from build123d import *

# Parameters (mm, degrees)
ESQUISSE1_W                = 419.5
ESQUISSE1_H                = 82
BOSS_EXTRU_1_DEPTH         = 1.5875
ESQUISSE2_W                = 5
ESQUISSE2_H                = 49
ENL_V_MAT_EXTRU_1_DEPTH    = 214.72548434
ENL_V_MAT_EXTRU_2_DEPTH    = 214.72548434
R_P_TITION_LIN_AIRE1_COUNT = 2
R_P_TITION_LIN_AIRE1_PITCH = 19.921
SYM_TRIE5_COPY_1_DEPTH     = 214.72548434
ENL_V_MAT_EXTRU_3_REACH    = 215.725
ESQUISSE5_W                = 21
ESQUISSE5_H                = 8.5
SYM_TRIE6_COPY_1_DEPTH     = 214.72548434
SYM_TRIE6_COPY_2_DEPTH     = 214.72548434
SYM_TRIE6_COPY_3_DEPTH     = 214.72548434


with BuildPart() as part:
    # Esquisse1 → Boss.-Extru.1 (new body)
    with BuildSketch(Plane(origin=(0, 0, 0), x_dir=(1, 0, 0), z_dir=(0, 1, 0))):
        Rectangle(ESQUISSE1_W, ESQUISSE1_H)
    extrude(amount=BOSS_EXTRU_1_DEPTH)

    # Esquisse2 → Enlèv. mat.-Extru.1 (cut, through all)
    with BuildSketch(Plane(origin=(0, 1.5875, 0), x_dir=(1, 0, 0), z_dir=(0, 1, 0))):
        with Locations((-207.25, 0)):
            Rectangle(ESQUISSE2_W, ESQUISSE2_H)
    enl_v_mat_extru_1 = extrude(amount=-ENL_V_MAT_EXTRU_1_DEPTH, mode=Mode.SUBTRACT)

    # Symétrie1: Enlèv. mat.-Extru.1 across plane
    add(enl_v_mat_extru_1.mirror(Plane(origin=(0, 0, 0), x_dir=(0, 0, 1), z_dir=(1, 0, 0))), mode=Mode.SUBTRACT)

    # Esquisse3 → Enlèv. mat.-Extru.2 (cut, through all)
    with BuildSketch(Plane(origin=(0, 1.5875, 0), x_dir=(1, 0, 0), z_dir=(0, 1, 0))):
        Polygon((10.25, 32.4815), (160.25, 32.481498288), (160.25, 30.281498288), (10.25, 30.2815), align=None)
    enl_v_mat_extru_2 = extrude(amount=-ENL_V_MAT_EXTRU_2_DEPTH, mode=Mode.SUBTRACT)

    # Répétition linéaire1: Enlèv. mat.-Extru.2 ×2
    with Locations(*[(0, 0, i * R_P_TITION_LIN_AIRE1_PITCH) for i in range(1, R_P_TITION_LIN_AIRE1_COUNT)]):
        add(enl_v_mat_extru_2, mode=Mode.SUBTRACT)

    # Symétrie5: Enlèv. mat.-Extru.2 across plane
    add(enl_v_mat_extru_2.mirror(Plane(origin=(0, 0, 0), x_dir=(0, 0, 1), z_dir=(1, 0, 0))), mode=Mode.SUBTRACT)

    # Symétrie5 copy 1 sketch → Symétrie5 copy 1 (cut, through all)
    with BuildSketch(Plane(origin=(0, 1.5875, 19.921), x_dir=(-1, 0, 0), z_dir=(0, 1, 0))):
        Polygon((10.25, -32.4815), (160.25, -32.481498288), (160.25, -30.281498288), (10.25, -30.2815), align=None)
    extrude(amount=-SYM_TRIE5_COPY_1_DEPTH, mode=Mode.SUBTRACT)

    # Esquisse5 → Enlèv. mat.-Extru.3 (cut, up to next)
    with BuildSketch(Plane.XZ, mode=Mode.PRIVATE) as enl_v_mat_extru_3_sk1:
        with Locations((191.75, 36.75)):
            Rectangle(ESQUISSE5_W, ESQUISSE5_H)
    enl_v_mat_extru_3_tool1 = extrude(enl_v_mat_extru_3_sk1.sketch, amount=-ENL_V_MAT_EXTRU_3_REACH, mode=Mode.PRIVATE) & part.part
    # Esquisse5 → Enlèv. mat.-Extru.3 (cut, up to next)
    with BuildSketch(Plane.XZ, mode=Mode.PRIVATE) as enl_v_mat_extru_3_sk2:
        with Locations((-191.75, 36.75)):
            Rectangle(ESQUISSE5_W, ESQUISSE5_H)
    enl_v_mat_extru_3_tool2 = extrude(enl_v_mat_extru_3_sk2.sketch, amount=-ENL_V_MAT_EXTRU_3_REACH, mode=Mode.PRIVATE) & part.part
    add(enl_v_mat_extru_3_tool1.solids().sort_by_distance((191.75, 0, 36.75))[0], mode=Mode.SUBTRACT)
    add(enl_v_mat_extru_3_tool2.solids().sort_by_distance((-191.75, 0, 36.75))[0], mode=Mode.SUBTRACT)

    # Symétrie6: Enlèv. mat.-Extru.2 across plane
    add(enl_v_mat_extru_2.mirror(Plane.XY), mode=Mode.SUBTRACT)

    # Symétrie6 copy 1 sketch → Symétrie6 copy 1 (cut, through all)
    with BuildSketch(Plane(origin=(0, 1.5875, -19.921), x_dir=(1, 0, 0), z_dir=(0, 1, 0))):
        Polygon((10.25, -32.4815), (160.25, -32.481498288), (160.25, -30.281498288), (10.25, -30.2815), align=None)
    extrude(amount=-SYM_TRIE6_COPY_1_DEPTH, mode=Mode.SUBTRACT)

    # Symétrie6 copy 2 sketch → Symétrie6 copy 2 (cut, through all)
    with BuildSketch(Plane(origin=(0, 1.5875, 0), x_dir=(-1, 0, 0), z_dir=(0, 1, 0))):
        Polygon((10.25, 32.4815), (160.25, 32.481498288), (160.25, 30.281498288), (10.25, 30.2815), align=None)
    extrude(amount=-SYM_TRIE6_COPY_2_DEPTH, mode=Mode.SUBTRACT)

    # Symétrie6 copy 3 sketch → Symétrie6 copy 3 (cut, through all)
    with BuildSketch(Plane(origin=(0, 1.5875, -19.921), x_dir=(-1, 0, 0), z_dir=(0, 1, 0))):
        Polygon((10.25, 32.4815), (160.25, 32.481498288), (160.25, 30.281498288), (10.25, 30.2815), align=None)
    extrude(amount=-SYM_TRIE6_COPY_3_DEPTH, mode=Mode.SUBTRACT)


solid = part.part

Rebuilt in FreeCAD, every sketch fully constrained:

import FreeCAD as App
import Part
import Sketcher
from FreeCAD import Vector
Q = App.Units.Quantity


def add_polygon(sketch, points):
    """Adds a closed chain of lines whose ends are joined by coincident constraints."""
    first, n = sketch.GeometryCount, len(points)
    for a, b in zip(points, points[1:] + points[:1]):
        sketch.addGeometry(Part.LineSegment(App.Vector(*a, 0), App.Vector(*b, 0)), False)
    for i in range(n):
        sketch.addConstraint(Sketcher.Constraint("Coincident", first + i, 2, first + (i + 1) % n, 1))

doc = App.newDocument("Part")
body = doc.addObject("PartDesign::Body", "Body")

sketch1 = body.newObject("Sketcher::SketchObject", "Sketch")
sketch1.AttachmentSupport = (doc.getObject("XZ_Plane"), [""])
sketch1.MapMode = "FlatFace"
add_polygon(sketch1, [(-210, -41), (-210, 41), (210, 41), (210, -41)])
sketch1.addConstraint([
    Sketcher.Constraint("Vertical", 0),
    Sketcher.Constraint("Horizontal", 1),
    Sketcher.Constraint("Vertical", 2),
    Sketcher.Constraint("Horizontal", 3),
    Sketcher.Constraint("Symmetric", 0, 2, 2, 2, -1, 1),
    Sketcher.Constraint("DistanceY", 0, 1, 0, 2, Q("82 mm")),
    Sketcher.Constraint("DistanceX", 1, 1, 1, 2, Q("419.5 mm")),
])
pad1 = body.newObject("PartDesign::Pad", "Pad")
pad1.Profile = sketch1
pad1.Length = 1.5875
pad1.Reversed = True

sketch2 = body.newObject("Sketcher::SketchObject", "Sketch001")
sketch2.AttachmentSupport = (doc.getObject("XZ_Plane"), [""])
sketch2.MapMode = "FlatFace"
sketch2.AttachmentOffset = App.Placement(Vector(0, 0, -1.5875), App.Rotation())
add_polygon(sketch2, [(-210, -24), (-210, 24), (-205, 24), (-205, -24)])
sketch2.addConstraint([
    Sketcher.Constraint("Vertical", 0),
    Sketcher.Constraint("Horizontal", 1),
    Sketcher.Constraint("Vertical", 2),
    Sketcher.Constraint("Horizontal", 3),
    Sketcher.Constraint("DistanceX", 1, 1, 1, 2, Q("5 mm")),
    Sketcher.Constraint("DistanceY", 0, 1, 0, 2, Q("49 mm")),
    Sketcher.Constraint("DistanceY", -1, 1, 0, 2, Q("24.5 mm")),
    Sketcher.Constraint("DistanceX", 0, 2, -1, 1, Q("209.75 mm")),
])
pocket1 = body.newObject("PartDesign::Pocket", "Pocket")
pocket1.Profile = sketch2
pocket1.Type = "ThroughAll"
pocket1.Reversed = True
doc.recompute()

mirrored = body.newObject("PartDesign::Mirrored", "Mirrored")
mirrored.Originals = [pocket1]
mirrored.MirrorPlane = (doc.getObject("YZ_Plane"), [""])
body.Tip = mirrored

sketch3 = body.newObject("Sketcher::SketchObject", "Sketch002")
sketch3.AttachmentSupport = (doc.getObject("XZ_Plane"), [""])
sketch3.MapMode = "FlatFace"
sketch3.AttachmentOffset = App.Placement(Vector(0, 0, -1.5875), App.Rotation())
add_polygon(sketch3, [(160.2, -32.5), (10.2, -32.5), (10.2, -30.3), (160.2, -30.3)])
sketch3.addConstraint([
    Sketcher.Constraint("Horizontal", 0),
    Sketcher.Constraint("Vertical", 1),
    Sketcher.Constraint("Horizontal", 2),
    Sketcher.Constraint("Vertical", 3),
    Sketcher.Constraint("DistanceX", 0, 2, 0, 1, Q("150 mm")),
    Sketcher.Constraint("DistanceY", 1, 1, 1, 2, Q("2.2 mm")),
    Sketcher.Constraint("DistanceX", -1, 1, 0, 2, Q("10.25 mm")),
    Sketcher.Constraint("DistanceY", 0, 2, -1, 1, Q("32.4815 mm")),
])
pocket2 = body.newObject("PartDesign::Pocket", "Pocket001")
pocket2.Profile = sketch3
pocket2.Type = "ThroughAll"
pocket2.Reversed = True
doc.recompute()

linearpattern = body.newObject("PartDesign::LinearPattern", "LinearPattern")
linearpattern.Originals = [pocket2]
linearpattern.Direction = (doc.getObject("Z_Axis"), [""])
linearpattern.Mode = "offset"
linearpattern.Offset = 19.921
linearpattern.Occurrences = 2
body.Tip = linearpattern
doc.recompute()

mirrored2 = body.newObject("PartDesign::Mirrored", "Mirrored001")
mirrored2.Originals = [pocket2]
mirrored2.MirrorPlane = (doc.getObject("YZ_Plane"), [""])
body.Tip = mirrored2

sketch4 = body.newObject("Sketcher::SketchObject", "Sketch003")
sketch4.AttachmentSupport = (doc.getObject("XZ_Plane"), [""])
sketch4.MapMode = "FlatFace"
sketch4.AttachmentOffset = App.Placement(Vector(0, 0, -1.5875), App.Rotation())
add_polygon(sketch4, [(-10.2, -12.6), (-160.2, -12.6), (-160.2, -10.4), (-10.2, -10.4)])
sketch4.addConstraint([
    Sketcher.Constraint("Horizontal", 0),
    Sketcher.Constraint("Vertical", 1),
    Sketcher.Constraint("Horizontal", 2),
    Sketcher.Constraint("Vertical", 3),
    Sketcher.Constraint("DistanceX", 0, 2, 0, 1, Q("150 mm")),
    Sketcher.Constraint("DistanceY", 1, 1, 1, 2, Q("2.2 mm")),
    Sketcher.Constraint("DistanceX", 0, 2, -1, 1, Q("160.25 mm")),
    Sketcher.Constraint("DistanceY", 0, 2, -1, 1, Q("12.560498 mm")),
])
pocket3 = body.newObject("PartDesign::Pocket", "Pocket002")
pocket3.Profile = sketch4
pocket3.Type = "ThroughAll"
pocket3.Reversed = True

sketch5 = body.newObject("Sketcher::SketchObject", "Sketch004")
sketch5.AttachmentSupport = (doc.getObject("XZ_Plane"), [""])
sketch5.MapMode = "FlatFace"
add_polygon(sketch5, [(181, 41), (181, 32), (202, 32), (202, 41)])
sketch5.addConstraint([
    Sketcher.Constraint("Vertical", 0),
    Sketcher.Constraint("Horizontal", 1),
    Sketcher.Constraint("Vertical", 2),
    Sketcher.Constraint("Horizontal", 3),
    Sketcher.Constraint("DistanceX", 1, 1, 1, 2, Q("21 mm")),
    Sketcher.Constraint("DistanceY", 0, 2, 0, 1, Q("8.5 mm")),
    Sketcher.Constraint("DistanceY", -1, 1, 2, 2, Q("41 mm")),
    Sketcher.Constraint("DistanceX", -1, 1, 0, 2, Q("181.25 mm")),
])
pocket4 = body.newObject("PartDesign::Pocket", "Pocket003")
pocket4.Profile = sketch5
pocket4.Type = "UpToFirst"

sketch6 = body.newObject("Sketcher::SketchObject", "Sketch005")
sketch6.AttachmentSupport = (doc.getObject("XZ_Plane"), [""])
sketch6.MapMode = "FlatFace"
add_polygon(sketch6, [(-202, 41), (-202, 32), (-181, 32), (-181, 41)])
sketch6.addConstraint([
    Sketcher.Constraint("Vertical", 0),
    Sketcher.Constraint("Horizontal", 1),
    Sketcher.Constraint("Vertical", 2),
    Sketcher.Constraint("Horizontal", 3),
    Sketcher.Constraint("DistanceX", 1, 1, 1, 2, Q("21 mm")),
    Sketcher.Constraint("DistanceY", 0, 2, 0, 1, Q("8.5 mm")),
    Sketcher.Constraint("DistanceY", -1, 1, 2, 2, Q("41 mm")),
    Sketcher.Constraint("DistanceX", 0, 2, -1, 1, Q("202.25 mm")),
])
pocket5 = body.newObject("PartDesign::Pocket", "Pocket004")
pocket5.Profile = sketch6
pocket5.Type = "UpToFirst"
doc.recompute()

mirrored3 = body.newObject("PartDesign::Mirrored", "Mirrored002")
mirrored3.Originals = [pocket2]
mirrored3.MirrorPlane = (doc.getObject("XY_Plane"), [""])
body.Tip = mirrored3

sketch7 = body.newObject("Sketcher::SketchObject", "Sketch006")
sketch7.AttachmentSupport = (doc.getObject("XZ_Plane"), [""])
sketch7.MapMode = "FlatFace"
sketch7.AttachmentOffset = App.Placement(Vector(0, 0, -1.5875), App.Rotation())
add_polygon(sketch7, [(10.2, 12.6), (160.2, 12.6), (160.2, 10.4), (10.2, 10.4)])
sketch7.addConstraint([
    Sketcher.Constraint("Horizontal", 0),
    Sketcher.Constraint("Vertical", 1),
    Sketcher.Constraint("Horizontal", 2),
    Sketcher.Constraint("Vertical", 3),
    Sketcher.Constraint("DistanceX", 0, 1, 0, 2, Q("150 mm")),
    Sketcher.Constraint("DistanceY", 1, 2, 1, 1, Q("2.2 mm")),
    Sketcher.Constraint("DistanceX", -1, 1, 0, 2, Q("160.25 mm")),
    Sketcher.Constraint("DistanceY", -1, 1, 0, 2, Q("12.560498 mm")),
])
pocket6 = body.newObject("PartDesign::Pocket", "Pocket005")
pocket6.Profile = sketch7
pocket6.Type = "ThroughAll"
pocket6.Reversed = True

sketch8 = body.newObject("Sketcher::SketchObject", "Sketch007")
sketch8.AttachmentSupport = (doc.getObject("XZ_Plane"), [""])
sketch8.MapMode = "FlatFace"
sketch8.AttachmentOffset = App.Placement(Vector(0, 0, -1.5875), App.Rotation())
add_polygon(sketch8, [(-160.2, 32.5), (-10.2, 32.5), (-10.2, 30.3), (-160.2, 30.3)])
sketch8.addConstraint([
    Sketcher.Constraint("Horizontal", 0),
    Sketcher.Constraint("Vertical", 1),
    Sketcher.Constraint("Horizontal", 2),
    Sketcher.Constraint("Vertical", 3),
    Sketcher.Constraint("DistanceX", 0, 1, 0, 2, Q("150 mm")),
    Sketcher.Constraint("DistanceY", 1, 2, 1, 1, Q("2.2 mm")),
    Sketcher.Constraint("DistanceX", 0, 2, -1, 1, Q("10.25 mm")),
    Sketcher.Constraint("DistanceY", -1, 1, 0, 2, Q("32.4815 mm")),
])
pocket7 = body.newObject("PartDesign::Pocket", "Pocket006")
pocket7.Profile = sketch8
pocket7.Type = "ThroughAll"
pocket7.Reversed = True

sketch9 = body.newObject("Sketcher::SketchObject", "Sketch008")
sketch9.AttachmentSupport = (doc.getObject("XZ_Plane"), [""])
sketch9.MapMode = "FlatFace"
sketch9.AttachmentOffset = App.Placement(Vector(0, 0, -1.5875), App.Rotation())
add_polygon(sketch9, [(-160.2, 12.6), (-10.2, 12.6), (-10.2, 10.4), (-160.2, 10.4)])
sketch9.addConstraint([
    Sketcher.Constraint("Horizontal", 0),
    Sketcher.Constraint("Vertical", 1),
    Sketcher.Constraint("Horizontal", 2),
    Sketcher.Constraint("Vertical", 3),
    Sketcher.Constraint("DistanceX", 0, 1, 0, 2, Q("150 mm")),
    Sketcher.Constraint("DistanceY", 1, 2, 1, 1, Q("2.2 mm")),
    Sketcher.Constraint("DistanceX", 0, 2, -1, 1, Q("10.25 mm")),
    Sketcher.Constraint("DistanceY", -1, 1, 0, 2, Q("12.5605 mm")),
])
pocket8 = body.newObject("PartDesign::Pocket", "Pocket007")
pocket8.Profile = sketch9
pocket8.Type = "ThroughAll"
pocket8.Reversed = True

doc.recompute()
